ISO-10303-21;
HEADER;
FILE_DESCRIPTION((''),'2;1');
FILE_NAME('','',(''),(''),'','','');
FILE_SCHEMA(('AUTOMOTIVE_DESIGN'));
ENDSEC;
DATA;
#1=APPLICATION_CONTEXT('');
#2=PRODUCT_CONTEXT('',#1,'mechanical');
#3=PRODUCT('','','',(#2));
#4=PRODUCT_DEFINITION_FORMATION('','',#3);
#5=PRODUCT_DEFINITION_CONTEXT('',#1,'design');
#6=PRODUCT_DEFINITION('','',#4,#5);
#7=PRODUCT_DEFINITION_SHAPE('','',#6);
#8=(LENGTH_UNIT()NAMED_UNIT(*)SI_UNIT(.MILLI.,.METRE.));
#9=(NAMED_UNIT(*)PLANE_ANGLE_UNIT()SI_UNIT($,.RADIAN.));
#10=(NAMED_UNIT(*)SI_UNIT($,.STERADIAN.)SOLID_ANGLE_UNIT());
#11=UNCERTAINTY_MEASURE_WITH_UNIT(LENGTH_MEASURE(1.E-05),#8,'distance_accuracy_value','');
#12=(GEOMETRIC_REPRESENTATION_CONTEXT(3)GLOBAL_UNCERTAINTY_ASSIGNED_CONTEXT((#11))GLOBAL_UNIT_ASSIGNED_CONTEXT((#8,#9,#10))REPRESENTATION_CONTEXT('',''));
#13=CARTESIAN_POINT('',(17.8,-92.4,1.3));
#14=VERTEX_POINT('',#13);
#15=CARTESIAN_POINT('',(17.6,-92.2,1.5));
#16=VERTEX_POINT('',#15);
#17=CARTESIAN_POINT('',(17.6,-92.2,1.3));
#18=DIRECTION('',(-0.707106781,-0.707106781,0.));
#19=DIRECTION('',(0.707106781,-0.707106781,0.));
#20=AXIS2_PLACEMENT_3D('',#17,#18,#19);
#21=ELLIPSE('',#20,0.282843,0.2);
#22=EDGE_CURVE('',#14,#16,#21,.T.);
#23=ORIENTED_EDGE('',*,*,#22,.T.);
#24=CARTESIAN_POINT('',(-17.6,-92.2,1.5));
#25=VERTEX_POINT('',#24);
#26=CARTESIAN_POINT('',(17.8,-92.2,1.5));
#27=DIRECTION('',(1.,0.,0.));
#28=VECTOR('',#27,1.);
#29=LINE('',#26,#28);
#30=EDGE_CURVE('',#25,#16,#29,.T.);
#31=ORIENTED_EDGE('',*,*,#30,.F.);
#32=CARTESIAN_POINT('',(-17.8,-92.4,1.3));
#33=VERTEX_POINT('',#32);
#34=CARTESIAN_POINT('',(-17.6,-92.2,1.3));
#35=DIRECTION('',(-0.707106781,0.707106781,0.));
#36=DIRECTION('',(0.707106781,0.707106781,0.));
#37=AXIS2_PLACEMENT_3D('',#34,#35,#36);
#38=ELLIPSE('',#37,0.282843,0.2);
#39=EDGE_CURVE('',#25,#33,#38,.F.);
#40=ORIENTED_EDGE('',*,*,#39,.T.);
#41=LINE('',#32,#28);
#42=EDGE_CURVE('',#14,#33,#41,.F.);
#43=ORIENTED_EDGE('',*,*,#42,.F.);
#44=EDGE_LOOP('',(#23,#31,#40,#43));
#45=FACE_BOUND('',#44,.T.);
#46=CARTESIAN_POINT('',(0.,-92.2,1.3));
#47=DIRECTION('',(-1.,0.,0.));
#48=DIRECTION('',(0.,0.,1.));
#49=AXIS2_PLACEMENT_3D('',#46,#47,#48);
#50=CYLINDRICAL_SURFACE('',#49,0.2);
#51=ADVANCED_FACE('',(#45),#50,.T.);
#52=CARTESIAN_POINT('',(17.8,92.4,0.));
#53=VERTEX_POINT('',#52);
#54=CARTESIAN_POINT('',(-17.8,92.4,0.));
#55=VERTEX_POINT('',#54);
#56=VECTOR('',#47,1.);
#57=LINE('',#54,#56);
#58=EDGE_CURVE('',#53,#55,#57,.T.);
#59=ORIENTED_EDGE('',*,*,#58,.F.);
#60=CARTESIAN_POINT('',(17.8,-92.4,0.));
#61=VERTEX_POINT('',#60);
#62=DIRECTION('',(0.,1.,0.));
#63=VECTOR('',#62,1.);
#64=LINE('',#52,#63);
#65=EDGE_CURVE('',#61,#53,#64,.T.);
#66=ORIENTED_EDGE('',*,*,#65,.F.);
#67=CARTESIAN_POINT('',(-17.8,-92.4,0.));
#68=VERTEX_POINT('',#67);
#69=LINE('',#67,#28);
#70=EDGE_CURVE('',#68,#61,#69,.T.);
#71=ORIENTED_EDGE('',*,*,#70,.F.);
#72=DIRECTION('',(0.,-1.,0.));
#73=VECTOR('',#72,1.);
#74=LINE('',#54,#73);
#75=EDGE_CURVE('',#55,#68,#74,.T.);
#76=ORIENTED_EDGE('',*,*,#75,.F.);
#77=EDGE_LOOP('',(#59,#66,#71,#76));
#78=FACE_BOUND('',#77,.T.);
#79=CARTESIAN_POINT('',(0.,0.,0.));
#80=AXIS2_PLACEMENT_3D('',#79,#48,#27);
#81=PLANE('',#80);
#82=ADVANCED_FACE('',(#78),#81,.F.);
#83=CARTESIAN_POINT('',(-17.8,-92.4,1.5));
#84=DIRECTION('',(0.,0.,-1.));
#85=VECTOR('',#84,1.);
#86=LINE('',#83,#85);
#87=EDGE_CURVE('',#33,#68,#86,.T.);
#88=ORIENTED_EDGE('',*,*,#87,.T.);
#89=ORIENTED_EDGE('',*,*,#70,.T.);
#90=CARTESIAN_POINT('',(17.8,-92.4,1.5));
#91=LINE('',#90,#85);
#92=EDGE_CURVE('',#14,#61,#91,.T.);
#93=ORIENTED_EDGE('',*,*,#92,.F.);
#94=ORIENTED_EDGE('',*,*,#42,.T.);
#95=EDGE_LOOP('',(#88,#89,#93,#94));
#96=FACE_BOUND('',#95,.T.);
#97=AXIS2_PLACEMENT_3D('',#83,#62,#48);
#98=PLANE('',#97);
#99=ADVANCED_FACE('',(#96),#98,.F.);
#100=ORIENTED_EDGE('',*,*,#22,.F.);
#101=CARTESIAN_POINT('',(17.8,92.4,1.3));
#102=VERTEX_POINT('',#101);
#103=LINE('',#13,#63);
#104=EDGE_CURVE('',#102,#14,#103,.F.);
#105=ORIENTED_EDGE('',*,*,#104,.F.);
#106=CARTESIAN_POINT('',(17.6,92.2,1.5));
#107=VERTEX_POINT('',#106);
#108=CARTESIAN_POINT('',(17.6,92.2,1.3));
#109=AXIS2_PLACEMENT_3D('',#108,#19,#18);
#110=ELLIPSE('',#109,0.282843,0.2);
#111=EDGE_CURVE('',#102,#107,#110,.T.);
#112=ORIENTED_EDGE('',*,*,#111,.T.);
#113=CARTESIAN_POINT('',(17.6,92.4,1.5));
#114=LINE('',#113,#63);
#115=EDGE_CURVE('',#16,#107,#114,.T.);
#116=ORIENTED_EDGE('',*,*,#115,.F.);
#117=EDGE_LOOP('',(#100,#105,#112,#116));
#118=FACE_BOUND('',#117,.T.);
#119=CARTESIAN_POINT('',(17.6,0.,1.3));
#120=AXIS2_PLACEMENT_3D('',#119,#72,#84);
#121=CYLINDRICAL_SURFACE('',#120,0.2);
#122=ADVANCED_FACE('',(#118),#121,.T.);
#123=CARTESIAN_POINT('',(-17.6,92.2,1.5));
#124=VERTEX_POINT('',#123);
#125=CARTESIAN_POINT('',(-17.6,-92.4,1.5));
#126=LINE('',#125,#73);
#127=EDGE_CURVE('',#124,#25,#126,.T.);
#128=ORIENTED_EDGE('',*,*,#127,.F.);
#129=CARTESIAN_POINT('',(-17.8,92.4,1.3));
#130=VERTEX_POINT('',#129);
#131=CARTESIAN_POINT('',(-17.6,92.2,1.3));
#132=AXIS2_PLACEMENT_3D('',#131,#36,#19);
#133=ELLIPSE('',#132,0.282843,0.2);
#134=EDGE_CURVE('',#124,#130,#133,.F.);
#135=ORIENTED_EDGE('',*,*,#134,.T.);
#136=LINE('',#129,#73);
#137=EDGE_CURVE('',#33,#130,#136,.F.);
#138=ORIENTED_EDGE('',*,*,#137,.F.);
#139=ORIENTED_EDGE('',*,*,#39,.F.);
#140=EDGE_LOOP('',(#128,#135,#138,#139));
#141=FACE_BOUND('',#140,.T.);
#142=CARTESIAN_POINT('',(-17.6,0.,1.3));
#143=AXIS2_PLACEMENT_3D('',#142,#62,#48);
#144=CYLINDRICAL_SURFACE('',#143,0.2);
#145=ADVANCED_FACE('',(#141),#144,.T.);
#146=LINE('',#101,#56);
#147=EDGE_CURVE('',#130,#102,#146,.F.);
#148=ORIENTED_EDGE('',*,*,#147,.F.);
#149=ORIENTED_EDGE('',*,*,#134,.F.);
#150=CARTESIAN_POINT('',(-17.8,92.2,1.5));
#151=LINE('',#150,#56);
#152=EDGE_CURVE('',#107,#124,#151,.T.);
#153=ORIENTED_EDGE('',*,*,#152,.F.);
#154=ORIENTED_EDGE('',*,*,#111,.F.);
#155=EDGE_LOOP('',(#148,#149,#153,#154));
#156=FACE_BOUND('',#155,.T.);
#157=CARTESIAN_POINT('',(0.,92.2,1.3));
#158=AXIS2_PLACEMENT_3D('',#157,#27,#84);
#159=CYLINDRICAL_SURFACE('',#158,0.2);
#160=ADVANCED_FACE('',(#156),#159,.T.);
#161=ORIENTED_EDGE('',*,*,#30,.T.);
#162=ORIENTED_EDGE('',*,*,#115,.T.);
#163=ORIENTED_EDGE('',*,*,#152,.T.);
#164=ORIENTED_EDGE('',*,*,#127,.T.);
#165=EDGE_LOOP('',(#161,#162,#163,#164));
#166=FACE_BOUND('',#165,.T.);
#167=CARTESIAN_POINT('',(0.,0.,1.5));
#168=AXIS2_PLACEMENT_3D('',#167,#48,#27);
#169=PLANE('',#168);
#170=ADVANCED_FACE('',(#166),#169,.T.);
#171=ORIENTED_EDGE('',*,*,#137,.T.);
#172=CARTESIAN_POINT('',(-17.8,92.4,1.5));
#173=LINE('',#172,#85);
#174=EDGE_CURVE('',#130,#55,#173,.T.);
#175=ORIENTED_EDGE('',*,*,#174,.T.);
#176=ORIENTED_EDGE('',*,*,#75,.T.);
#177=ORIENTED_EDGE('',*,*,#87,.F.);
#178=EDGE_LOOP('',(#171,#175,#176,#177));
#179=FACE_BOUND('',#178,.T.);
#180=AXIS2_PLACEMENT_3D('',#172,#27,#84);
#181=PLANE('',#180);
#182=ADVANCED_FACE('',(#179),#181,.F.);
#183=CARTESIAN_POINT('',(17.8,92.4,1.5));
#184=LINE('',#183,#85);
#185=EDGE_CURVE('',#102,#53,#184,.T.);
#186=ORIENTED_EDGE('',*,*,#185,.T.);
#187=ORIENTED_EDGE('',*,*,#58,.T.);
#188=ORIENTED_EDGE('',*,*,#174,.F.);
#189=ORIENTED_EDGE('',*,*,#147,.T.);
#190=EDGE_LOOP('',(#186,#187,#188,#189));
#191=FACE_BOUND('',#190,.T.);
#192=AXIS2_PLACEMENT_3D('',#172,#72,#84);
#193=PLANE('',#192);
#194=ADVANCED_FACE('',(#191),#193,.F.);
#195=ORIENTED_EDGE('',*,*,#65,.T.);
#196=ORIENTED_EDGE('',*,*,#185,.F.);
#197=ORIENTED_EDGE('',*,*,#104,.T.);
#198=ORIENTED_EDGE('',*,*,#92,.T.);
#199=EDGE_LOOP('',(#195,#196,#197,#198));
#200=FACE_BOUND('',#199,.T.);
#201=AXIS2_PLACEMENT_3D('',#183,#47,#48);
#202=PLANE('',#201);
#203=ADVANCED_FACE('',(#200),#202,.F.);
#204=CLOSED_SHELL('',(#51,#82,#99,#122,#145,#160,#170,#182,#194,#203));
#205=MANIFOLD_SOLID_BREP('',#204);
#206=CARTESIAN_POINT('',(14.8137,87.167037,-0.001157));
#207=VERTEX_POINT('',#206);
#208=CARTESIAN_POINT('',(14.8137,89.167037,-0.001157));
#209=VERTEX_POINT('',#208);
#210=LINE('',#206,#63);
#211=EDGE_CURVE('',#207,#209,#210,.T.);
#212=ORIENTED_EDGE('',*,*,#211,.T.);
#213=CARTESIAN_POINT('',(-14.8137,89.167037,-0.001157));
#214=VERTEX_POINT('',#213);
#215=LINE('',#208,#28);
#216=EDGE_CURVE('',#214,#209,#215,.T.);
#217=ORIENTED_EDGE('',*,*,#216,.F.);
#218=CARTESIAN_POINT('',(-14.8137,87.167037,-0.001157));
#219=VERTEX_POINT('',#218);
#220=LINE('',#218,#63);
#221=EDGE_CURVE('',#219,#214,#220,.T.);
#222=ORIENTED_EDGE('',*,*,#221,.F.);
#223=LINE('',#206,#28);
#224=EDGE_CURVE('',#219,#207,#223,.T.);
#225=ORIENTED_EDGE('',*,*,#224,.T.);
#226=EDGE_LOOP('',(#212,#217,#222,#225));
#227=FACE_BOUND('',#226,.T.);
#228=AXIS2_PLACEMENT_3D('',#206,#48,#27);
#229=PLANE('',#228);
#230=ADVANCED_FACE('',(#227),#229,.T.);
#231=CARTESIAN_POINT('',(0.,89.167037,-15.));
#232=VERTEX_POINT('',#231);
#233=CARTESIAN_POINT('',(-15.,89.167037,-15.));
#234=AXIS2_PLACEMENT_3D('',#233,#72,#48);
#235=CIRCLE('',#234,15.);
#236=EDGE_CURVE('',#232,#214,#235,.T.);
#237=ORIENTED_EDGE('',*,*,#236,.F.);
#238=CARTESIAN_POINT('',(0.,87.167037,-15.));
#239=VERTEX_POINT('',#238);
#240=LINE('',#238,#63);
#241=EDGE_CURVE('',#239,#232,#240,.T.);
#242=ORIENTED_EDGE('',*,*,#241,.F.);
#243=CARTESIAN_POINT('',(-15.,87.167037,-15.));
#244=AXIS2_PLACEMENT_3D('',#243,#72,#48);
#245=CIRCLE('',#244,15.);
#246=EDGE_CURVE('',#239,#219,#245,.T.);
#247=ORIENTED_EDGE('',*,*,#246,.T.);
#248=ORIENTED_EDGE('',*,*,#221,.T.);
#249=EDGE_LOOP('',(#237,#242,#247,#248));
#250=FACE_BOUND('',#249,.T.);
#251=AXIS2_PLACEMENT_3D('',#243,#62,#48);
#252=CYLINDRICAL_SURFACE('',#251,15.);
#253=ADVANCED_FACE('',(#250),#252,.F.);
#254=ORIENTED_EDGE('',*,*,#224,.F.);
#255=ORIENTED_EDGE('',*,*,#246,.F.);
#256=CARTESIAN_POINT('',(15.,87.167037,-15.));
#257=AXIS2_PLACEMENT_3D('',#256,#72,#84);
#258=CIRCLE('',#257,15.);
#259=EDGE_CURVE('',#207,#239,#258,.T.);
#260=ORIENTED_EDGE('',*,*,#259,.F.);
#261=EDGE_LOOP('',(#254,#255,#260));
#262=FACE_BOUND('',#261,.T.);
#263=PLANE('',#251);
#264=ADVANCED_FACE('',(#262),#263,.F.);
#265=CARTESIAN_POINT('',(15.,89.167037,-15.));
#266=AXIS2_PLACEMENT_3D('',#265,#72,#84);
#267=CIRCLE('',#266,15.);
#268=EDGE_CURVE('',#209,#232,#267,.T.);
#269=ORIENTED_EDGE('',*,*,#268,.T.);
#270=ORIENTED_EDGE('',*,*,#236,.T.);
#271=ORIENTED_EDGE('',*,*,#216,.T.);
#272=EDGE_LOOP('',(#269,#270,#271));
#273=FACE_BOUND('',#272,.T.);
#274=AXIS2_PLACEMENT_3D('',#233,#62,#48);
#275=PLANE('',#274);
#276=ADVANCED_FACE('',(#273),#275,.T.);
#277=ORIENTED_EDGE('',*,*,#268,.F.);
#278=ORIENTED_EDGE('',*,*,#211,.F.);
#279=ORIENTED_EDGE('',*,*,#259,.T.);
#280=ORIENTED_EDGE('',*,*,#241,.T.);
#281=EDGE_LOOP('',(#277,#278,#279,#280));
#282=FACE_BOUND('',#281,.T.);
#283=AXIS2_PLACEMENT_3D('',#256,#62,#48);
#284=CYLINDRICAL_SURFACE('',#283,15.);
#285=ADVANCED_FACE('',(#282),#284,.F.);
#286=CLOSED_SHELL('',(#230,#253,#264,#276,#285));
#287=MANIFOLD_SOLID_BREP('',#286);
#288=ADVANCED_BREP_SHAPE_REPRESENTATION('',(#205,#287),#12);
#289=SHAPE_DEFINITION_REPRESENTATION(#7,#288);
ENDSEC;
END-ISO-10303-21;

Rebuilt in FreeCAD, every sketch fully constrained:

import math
import FreeCAD as App
import Part
import Sketcher
from FreeCAD import Vector
Q = App.Units.Quantity


def edges_at(feature, points):
    """Names of the edges that pass closest to the given points."""
    edges = feature.Shape.Edges
    near = lambda p: min(range(len(edges)), key=lambda i: edges[i].distToShape(Part.Vertex(*p))[0])
    return sorted({f"Edge{near(p) + 1}" for p in points})

doc = App.newDocument("Part")
body = doc.addObject("PartDesign::Body", "Body")

# Sketch on XY plane
sketch1 = body.newObject("Sketcher::SketchObject", "Sketch")
sketch1.AttachmentSupport = (doc.getObject("XY_Plane"), [""])
sketch1.MapMode = "FlatFace"
sketch1.addGeometry(Part.LineSegment(Vector(-18, 92, 0), Vector(-18, -92, 0)), False)
sketch1.addGeometry(Part.LineSegment(Vector(-18, -92, 0), Vector(18, -92, 0)), False)
sketch1.addGeometry(Part.LineSegment(Vector(18, -92, 0), Vector(18, 92, 0)), False)
sketch1.addGeometry(Part.LineSegment(Vector(18, 92, 0), Vector(-18, 92, 0)), False)
sketch1.addConstraint(Sketcher.Constraint("Coincident", 0, 2, 1, 1))
sketch1.addConstraint(Sketcher.Constraint("Coincident", 1, 2, 2, 1))
sketch1.addConstraint(Sketcher.Constraint("Coincident", 2, 2, 3, 1))
sketch1.addConstraint(Sketcher.Constraint("Coincident", 3, 2, 0, 1))
sketch1.addConstraint(Sketcher.Constraint("Vertical", 0))
sketch1.addConstraint(Sketcher.Constraint("Horizontal", 1))
sketch1.addConstraint(Sketcher.Constraint("Vertical", 2))
sketch1.addConstraint(Sketcher.Constraint("Horizontal", 3))
sketch1.addConstraint(Sketcher.Constraint("Symmetric", 0, 2, 2, 2, -1, 1))
sketch1.addConstraint(Sketcher.Constraint("DistanceX", 1, 1, 1, 2, Q("35.6 mm")))
sketch1.addConstraint(Sketcher.Constraint("DistanceY", 0, 2, 0, 1, Q("184.8 mm")))
pad1 = body.newObject("PartDesign::Pad", "Pad")
pad1.Profile = sketch1
pad1.Length = 1.5
doc.recompute()

fillet = body.newObject("PartDesign::Fillet", "Fillet")
fillet.Base = (pad1, edges_at(pad1, [
    (-17.8, 0, 1.5),
    (0, -92.4, 1.5),
    (17.8, 0, 1.5),
    (0, 92.4, 1.5),
]))
fillet.Radius = 0.2
body2 = doc.addObject("PartDesign::Body", "Body001")

# Sketch on XZ plane
sketch2 = body2.newObject("Sketcher::SketchObject", "Sketch001")
sketch2.AttachmentSupport = (doc.getObject("XZ_Plane001"), [""])
sketch2.MapMode = "FlatFace"
sketch2.AttachmentOffset = App.Placement(Vector(0, 0, -89.167037), App.Rotation())
sketch2.addGeometry(Part.LineSegment(Vector(-15, 0, 0), Vector(15, 0, 0)), False)
sketch2.addGeometry(Part.ArcOfCircle(Part.Circle(Vector(15, -15, 0), Vector(0, 0, 1), 15), math.radians(91), math.radians(180)), False)
sketch2.addGeometry(Part.ArcOfCircle(Part.Circle(Vector(-15, -15, 0), Vector(0, 0, 1), 15), math.radians(0), math.radians(89)), False)
sketch2.addConstraint(Sketcher.Constraint("Coincident", 0, 2, 1, 1))
sketch2.addConstraint(Sketcher.Constraint("Tangent", 1, 2, 2, 1))
sketch2.addConstraint(Sketcher.Constraint("Coincident", 2, 2, 0, 1))
sketch2.addConstraint(Sketcher.Constraint("Horizontal", 0))
sketch2.addConstraint(Sketcher.Constraint("Equal", 1, 2))
sketch2.addConstraint(Sketcher.Constraint("Symmetric", 1, 3, 2, 3, -2))
sketch2.addConstraint(Sketcher.Constraint("Radius", 1, Q("15 mm")))
sketch2.addConstraint(Sketcher.Constraint("DistanceY", 1, 3, -1, 1, Q("15 mm")))
sketch2.addConstraint(Sketcher.Constraint("DistanceX", 0, 1, 0, 2, Q("29.6274 mm")))
pad2 = body2.newObject("PartDesign::Pad", "Pad001")
pad2.Profile = sketch2
pad2.Length = 2

doc.recompute()
